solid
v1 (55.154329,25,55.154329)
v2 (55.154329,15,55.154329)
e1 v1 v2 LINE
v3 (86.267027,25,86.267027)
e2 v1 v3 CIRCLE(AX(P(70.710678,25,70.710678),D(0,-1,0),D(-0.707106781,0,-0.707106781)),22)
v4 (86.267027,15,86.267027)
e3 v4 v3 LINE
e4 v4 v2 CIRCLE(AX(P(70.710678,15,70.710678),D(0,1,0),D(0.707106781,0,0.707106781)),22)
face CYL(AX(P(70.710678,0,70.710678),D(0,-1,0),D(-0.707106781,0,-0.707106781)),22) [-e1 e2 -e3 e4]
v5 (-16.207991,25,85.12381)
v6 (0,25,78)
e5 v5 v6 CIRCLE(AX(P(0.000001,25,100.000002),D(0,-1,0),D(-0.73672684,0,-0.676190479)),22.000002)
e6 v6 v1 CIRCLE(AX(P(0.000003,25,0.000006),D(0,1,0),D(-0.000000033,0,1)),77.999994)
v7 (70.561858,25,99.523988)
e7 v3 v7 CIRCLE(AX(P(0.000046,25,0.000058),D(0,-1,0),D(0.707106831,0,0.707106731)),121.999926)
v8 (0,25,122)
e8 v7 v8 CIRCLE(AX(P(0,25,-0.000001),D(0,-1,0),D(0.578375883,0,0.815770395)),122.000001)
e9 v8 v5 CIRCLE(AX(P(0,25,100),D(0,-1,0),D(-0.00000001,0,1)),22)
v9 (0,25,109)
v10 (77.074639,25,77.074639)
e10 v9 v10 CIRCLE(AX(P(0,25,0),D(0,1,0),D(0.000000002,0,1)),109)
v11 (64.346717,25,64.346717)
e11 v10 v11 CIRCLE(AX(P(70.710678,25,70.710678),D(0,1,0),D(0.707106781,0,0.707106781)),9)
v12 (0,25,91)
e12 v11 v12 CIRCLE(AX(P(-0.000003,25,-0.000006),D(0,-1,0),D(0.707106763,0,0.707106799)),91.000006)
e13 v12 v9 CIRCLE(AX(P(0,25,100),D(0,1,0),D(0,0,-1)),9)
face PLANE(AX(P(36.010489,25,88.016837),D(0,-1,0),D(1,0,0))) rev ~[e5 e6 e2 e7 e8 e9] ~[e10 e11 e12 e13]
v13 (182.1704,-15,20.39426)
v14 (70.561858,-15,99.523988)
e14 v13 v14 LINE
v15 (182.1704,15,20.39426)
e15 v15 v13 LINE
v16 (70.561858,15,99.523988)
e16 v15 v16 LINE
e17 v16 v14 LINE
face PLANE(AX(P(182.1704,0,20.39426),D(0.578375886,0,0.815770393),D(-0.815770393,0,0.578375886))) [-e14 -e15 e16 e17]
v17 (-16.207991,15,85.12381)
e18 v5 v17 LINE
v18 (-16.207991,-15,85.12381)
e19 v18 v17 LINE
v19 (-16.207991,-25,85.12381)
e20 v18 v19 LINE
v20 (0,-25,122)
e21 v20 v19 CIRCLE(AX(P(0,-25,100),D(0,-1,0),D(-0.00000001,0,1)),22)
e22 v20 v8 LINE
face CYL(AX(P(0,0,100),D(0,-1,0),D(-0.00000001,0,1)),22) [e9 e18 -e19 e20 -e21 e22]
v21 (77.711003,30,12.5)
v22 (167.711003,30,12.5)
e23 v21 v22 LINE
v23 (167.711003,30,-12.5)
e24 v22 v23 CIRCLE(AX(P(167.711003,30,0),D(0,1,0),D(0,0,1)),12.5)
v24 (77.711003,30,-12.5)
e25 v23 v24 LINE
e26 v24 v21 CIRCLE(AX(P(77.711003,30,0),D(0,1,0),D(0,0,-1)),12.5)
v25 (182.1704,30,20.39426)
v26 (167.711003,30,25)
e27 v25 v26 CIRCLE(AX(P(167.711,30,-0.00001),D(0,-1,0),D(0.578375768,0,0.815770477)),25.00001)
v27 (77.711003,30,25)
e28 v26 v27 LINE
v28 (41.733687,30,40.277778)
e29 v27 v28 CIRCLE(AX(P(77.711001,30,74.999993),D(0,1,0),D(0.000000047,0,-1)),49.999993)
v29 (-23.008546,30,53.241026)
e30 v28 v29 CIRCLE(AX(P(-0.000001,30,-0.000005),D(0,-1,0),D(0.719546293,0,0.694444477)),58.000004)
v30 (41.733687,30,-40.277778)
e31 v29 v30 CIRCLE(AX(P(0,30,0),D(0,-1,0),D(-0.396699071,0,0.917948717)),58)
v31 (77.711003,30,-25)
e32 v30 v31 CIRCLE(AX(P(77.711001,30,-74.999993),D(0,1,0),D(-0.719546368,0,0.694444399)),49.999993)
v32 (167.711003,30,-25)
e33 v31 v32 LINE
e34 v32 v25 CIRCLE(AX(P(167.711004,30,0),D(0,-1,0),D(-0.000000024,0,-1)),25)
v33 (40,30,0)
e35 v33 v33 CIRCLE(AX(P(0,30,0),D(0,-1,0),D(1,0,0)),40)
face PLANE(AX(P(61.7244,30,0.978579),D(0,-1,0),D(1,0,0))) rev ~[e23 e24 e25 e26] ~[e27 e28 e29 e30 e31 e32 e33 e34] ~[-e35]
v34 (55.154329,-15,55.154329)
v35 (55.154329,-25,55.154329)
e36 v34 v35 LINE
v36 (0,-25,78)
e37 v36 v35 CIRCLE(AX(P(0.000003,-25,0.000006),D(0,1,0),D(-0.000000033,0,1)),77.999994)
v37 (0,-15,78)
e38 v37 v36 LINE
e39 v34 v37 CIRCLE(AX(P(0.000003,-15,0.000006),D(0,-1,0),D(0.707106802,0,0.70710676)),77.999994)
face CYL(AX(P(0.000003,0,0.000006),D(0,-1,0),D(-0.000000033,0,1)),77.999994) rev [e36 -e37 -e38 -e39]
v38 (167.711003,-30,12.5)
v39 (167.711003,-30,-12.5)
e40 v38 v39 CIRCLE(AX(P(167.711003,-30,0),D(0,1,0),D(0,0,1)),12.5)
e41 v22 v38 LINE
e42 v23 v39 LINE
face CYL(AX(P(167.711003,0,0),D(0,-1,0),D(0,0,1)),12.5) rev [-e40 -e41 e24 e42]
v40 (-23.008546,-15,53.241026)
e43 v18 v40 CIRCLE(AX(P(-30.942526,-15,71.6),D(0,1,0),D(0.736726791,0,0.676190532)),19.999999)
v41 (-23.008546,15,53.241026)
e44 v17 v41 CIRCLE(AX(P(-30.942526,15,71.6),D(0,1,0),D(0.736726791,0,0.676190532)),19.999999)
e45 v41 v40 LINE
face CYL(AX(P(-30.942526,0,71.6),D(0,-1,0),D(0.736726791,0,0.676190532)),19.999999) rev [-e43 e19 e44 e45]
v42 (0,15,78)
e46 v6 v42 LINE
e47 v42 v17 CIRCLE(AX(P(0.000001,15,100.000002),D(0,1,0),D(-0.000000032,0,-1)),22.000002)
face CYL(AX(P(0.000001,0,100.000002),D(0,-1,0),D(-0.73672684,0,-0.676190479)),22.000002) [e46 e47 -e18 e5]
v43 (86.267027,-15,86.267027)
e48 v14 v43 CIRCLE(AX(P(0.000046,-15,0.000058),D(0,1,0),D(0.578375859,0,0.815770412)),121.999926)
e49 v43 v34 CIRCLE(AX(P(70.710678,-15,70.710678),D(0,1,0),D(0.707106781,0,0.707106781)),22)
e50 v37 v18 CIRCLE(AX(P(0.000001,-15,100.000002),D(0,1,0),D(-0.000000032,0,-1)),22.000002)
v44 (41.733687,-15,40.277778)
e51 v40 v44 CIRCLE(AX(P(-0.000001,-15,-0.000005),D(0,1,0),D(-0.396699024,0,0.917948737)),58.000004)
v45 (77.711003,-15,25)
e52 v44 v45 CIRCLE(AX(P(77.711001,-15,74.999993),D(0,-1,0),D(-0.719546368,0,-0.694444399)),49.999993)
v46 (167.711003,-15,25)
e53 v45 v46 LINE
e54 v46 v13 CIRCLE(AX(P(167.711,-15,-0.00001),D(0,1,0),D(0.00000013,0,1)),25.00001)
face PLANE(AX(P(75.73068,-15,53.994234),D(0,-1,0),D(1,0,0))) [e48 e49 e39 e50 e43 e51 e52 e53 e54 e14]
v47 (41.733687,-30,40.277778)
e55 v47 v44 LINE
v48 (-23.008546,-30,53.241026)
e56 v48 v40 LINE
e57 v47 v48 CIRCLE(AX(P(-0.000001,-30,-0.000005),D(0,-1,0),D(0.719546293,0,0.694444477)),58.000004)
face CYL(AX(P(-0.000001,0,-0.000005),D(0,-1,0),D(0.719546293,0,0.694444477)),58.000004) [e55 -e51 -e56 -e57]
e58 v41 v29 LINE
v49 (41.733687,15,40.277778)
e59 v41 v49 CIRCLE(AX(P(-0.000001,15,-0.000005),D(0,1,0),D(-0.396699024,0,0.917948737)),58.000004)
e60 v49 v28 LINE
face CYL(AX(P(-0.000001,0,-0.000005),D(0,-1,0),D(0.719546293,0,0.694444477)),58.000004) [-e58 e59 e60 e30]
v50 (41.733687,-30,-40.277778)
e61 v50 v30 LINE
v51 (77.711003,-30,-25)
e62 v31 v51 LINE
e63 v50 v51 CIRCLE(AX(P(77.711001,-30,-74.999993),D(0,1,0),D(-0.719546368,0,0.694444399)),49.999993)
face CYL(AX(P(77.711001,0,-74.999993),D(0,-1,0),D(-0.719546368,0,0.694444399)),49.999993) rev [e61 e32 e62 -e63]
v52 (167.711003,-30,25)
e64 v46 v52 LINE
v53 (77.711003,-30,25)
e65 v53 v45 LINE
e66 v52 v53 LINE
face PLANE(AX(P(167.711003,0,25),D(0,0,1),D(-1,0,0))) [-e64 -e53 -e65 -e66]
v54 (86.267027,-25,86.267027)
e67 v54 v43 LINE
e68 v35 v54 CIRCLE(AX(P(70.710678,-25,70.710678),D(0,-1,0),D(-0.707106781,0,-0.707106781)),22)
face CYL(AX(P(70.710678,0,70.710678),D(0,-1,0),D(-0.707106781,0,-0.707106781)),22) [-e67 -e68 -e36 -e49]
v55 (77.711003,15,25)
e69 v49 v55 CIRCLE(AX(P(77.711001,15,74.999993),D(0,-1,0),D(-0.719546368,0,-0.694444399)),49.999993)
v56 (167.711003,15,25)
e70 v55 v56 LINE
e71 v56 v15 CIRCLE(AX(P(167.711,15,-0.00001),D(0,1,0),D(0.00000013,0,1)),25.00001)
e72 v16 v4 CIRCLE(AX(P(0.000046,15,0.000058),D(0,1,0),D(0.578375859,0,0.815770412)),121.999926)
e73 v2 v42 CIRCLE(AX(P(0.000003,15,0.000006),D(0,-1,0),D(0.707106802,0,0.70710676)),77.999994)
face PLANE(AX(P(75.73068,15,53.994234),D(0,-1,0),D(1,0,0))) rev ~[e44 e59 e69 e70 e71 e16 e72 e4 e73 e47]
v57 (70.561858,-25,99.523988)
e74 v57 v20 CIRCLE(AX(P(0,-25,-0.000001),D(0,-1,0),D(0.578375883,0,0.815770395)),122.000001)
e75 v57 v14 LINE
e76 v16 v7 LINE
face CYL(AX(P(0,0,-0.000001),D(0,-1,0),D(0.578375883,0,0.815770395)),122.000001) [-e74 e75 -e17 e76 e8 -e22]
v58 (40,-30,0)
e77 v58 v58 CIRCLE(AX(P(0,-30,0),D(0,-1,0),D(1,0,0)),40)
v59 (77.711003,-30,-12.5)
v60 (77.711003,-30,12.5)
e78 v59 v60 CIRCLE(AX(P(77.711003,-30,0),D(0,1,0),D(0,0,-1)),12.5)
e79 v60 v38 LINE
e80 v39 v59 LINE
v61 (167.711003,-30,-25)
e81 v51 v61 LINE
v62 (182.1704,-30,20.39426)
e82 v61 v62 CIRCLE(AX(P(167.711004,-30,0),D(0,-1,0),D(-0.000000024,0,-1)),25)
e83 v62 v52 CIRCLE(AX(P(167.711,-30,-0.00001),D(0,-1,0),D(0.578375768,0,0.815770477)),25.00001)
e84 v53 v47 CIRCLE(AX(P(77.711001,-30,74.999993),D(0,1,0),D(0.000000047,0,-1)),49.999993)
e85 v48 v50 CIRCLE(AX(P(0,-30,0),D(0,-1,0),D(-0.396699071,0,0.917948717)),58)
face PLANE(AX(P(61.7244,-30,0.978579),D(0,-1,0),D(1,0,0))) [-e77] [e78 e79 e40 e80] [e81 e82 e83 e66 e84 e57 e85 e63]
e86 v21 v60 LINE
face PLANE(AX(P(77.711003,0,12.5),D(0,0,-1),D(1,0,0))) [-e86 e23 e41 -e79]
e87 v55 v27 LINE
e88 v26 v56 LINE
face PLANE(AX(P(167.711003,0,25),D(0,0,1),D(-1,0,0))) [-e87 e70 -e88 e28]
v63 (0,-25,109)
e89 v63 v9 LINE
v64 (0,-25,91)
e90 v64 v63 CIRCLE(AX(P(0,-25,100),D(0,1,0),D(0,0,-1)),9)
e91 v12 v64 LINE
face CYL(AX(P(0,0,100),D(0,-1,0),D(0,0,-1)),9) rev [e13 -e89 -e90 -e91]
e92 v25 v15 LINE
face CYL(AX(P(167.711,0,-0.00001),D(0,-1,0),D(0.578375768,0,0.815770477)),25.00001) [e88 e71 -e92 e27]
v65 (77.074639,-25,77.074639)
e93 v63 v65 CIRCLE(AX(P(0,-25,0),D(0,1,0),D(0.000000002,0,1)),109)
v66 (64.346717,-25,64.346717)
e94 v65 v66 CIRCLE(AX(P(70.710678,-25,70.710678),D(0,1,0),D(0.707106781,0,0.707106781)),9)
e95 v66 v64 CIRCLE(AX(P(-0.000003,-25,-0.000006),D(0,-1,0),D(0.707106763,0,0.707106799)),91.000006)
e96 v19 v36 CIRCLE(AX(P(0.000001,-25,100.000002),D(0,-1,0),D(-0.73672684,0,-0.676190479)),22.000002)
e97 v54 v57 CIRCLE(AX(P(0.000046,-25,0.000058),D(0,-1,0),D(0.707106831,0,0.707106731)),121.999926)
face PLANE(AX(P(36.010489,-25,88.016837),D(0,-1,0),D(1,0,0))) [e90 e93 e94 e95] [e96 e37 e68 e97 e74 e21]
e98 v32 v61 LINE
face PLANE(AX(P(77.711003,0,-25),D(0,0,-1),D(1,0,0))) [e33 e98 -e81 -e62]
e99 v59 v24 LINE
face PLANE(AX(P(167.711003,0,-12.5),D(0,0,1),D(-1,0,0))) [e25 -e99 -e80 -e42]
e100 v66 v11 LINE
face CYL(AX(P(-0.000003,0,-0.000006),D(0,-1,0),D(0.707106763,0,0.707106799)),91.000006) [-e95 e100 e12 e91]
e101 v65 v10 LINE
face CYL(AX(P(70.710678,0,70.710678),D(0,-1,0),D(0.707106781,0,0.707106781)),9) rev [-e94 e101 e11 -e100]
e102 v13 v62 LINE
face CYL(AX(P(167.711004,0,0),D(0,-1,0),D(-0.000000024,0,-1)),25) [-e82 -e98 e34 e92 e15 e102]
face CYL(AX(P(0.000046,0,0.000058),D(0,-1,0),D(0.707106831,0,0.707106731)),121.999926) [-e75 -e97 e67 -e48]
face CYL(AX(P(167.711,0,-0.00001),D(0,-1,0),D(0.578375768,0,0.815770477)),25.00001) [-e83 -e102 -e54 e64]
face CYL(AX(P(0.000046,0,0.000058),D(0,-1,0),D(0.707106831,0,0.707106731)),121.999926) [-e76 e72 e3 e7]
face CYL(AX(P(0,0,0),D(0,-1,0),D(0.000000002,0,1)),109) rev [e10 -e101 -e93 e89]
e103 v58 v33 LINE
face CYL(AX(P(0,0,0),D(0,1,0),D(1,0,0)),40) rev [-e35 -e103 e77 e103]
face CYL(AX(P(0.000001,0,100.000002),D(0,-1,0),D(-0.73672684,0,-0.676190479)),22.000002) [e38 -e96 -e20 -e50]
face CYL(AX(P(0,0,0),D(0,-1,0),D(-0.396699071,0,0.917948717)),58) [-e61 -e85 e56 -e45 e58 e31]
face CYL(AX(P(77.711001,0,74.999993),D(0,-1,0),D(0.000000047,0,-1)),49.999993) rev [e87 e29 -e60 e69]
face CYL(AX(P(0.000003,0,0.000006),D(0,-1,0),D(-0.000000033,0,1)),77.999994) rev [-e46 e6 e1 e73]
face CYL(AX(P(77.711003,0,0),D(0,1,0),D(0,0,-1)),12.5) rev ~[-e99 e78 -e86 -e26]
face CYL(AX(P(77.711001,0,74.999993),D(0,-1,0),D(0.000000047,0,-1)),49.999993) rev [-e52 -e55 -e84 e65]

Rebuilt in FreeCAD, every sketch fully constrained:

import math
import FreeCAD as App
import Part
import Sketcher

V = App.Vector

doc = App.newDocument("Part")
body = doc.addObject("PartDesign::Body", "Body")

# Sketch on XZ plane
sketch1 = body.newObject("Sketcher::SketchObject", "Sketch")
sketch1.AttachmentSupport = (doc.getObject("XZ_Plane"), [""])
sketch1.MapMode = "FlatFace"
sketch1.addGeometry([
    Part.ArcOfCircle(Part.Circle(V(78, -75, 0), V(0, 0, 1), 50), math.radians(90), math.radians(136)),  # 0
    Part.LineSegment(V(78, -25, 0), V(168, -25, 0)),  # 1
    Part.ArcOfCircle(Part.Circle(V(168, 0, 0), V(0, 0, 1), 25), math.radians(-90), math.radians(55)),  # 2
    Part.ArcOfCircle(Part.Circle(V(168, 0, 0), V(0, 0, 1), 25), math.radians(55), math.radians(90)),  # 3
    Part.LineSegment(V(168, 25, 0), V(78, 25, 0)),  # 4
    Part.ArcOfCircle(Part.Circle(V(78, 75, 0), V(0, 0, 1), 50), math.radians(-136), math.radians(-90)),  # 5
    Part.ArcOfCircle(Part.Circle(V(0, 0, 0), V(0, 0, 1), 58), math.radians(44), math.radians(113)),  # 6
    Part.ArcOfCircle(Part.Circle(V(0, 0, 0), V(0, 0, 1), 58), math.radians(113), math.radians(316)),  # 7
    Part.Circle(V(0, 0, 0), V(0, 0, 1), 40),  # 8
    Part.LineSegment(V(168, -12, 0), V(78, -12, 0)),  # 9
    Part.ArcOfCircle(Part.Circle(V(78, 0, 0), V(0, 0, 1), 12), math.radians(90), math.radians(270)),  # 10
    Part.LineSegment(V(78, 12, 0), V(168, 12, 0)),  # 11
    Part.ArcOfCircle(Part.Circle(V(168, 0, 0), V(0, 0, 1), 12), math.radians(-90), math.radians(90)),  # 12
], False)
sketch1.addConstraint([
    Sketcher.Constraint("Tangent", 0, 1, 1, 1),
    Sketcher.Constraint("Tangent", 1, 2, 2, 1),
    Sketcher.Constraint("Tangent", 2, 2, 3, 1),
    Sketcher.Constraint("Tangent", 3, 2, 4, 1),
    Sketcher.Constraint("Tangent", 4, 2, 5, 2),
    Sketcher.Constraint("Tangent", 5, 1, 6, 1),
    Sketcher.Constraint("Tangent", 6, 2, 7, 1),
    Sketcher.Constraint("Tangent", 7, 2, 0, 2),
    Sketcher.Constraint("Tangent", 9, 2, 10, 2),
    Sketcher.Constraint("Tangent", 10, 1, 11, 1),
    Sketcher.Constraint("Tangent", 11, 2, 12, 2),
    Sketcher.Constraint("Tangent", 12, 1, 9, 1),
    Sketcher.Constraint("Horizontal", 1),
    Sketcher.Constraint("Horizontal", 4),
    Sketcher.Constraint("Horizontal", 9),
    Sketcher.Constraint("Horizontal", 11),
    Sketcher.Constraint("Coincident", 6, 3, -1, 1),
    Sketcher.Constraint("Coincident", 8, 3, -1, 1),
    Sketcher.Constraint("Coincident", 12, 3, 2, 3),
    Sketcher.Constraint("Equal", 0, 5),
    Sketcher.Constraint("Symmetric", 0, 3, 5, 3, -1),
    Sketcher.Constraint("PointOnObject", 2, 3, -1),
    Sketcher.Constraint("Vertical", 10, 3, 0, 1),
    Sketcher.Constraint("Diameter", 8, 80.0),
    Sketcher.Constraint("Radius", 2, 25.0),
    Sketcher.Constraint("Radius", 7, 58.0),
    Sketcher.Constraint("Radius", 10, 12.5),
    Sketcher.Constraint("DistanceX", 1, 1, 1, 2, 90.0),
    Sketcher.Constraint("DistanceX", -1, 1, 0, 3, 77.711001),
    Sketcher.Constraint("DistanceX", -1, 1, 2, 2, 182.1704),
    Sketcher.Constraint("DistanceY", 6, 3, 6, 2, 53.241031),
])
pad1 = body.newObject("PartDesign::Pad", "Pad")
pad1.Profile = sketch1
pad1.Length = 60
pad1.Midplane = True

# Sketch on XZ plane
sketch2 = body.newObject("Sketcher::SketchObject", "Sketch001")
sketch2.AttachmentSupport = (doc.getObject("XZ_Plane"), [""])
sketch2.MapMode = "FlatFace"
sketch2.addGeometry([
    Part.ArcOfCircle(Part.Circle(V(-31, 72, 0), V(0, 0, 1), 20), math.radians(-67), math.radians(43)),  # 0
    Part.ArcOfCircle(Part.Circle(V(0, 0, 0), V(0, 0, 1), 58), math.radians(44), math.radians(113)),  # 1
    Part.ArcOfCircle(Part.Circle(V(78, 75, 0), V(0, 0, 1), 50), math.radians(-136), math.radians(-90)),  # 2
    Part.LineSegment(V(78, 25, 0), V(168, 25, 0)),  # 3
    Part.ArcOfCircle(Part.Circle(V(168, 0, 0), V(0, 0, 1), 25), math.radians(55), math.radians(90)),  # 4
    Part.LineSegment(V(182, 20, 0), V(71, 100, 0)),  # 5
    Part.ArcOfCircle(Part.Circle(V(0, 0, 0), V(0, 0, 1), 122), math.radians(45), math.radians(54.66)),  # 6
    Part.ArcOfCircle(Part.Circle(V(71, 71, 0), V(0, 0, 1), 22), math.radians(-135), math.radians(45)),  # 7
    Part.ArcOfCircle(Part.Circle(V(0, 0, 0), V(0, 0, 1), 78), math.radians(45), math.radians(90)),  # 8
    Part.ArcOfCircle(Part.Circle(V(0, 100, 0), V(0, 0, 1), 22), math.radians(-137), math.radians(-90)),  # 9
], False)
sketch2.addConstraint([
    Sketcher.Constraint("Tangent", 0, 1, 1, 2),
    Sketcher.Constraint("Tangent", 1, 1, 2, 1),
    Sketcher.Constraint("Tangent", 2, 2, 3, 1),
    Sketcher.Constraint("Tangent", 3, 2, 4, 2),
    Sketcher.Constraint("Tangent", 4, 1, 5, 1),
    Sketcher.Constraint("Tangent", 5, 2, 6, 2),
    Sketcher.Constraint("Tangent", 6, 1, 7, 2),
    Sketcher.Constraint("Tangent", 7, 1, 8, 1),
    Sketcher.Constraint("Tangent", 8, 2, 9, 2),
    Sketcher.Constraint("Tangent", 9, 1, 0, 2),
    Sketcher.Constraint("Horizontal", 3),
    Sketcher.Constraint("Coincident", 1, 3, -1, 1),
    Sketcher.Constraint("Coincident", 8, 3, -1, 1),
    Sketcher.Constraint("Equal", 7, 9),
    Sketcher.Constraint("PointOnObject", 9, 3, -2),
    Sketcher.Constraint("Radius", 0, 19.999999),
    Sketcher.Constraint("Radius", 7, 22.0),
    Sketcher.Constraint("DistanceX", 3, 1, 3, 2, 90.0),
    Sketcher.Constraint("DistanceY", -1, 1, 9, 3, 100.000002),
    Sketcher.Constraint("DistanceY", -1, 1, 2, 2, 25.0),
    Sketcher.Constraint("DistanceY", -1, 1, 0, 3, 71.6),
    Sketcher.Constraint("Radius", 4, 25.00001),
    Sketcher.Constraint("DistanceX", -1, 1, 2, 3, 77.711001),
    Sketcher.Constraint("Radius", 6, 121.999926),
    Sketcher.Constraint("DistanceY", 1, 1, 7, 3, 30.4329),
    Sketcher.Constraint("Distance", 5, 136.813671),
])
pad2 = body.newObject("PartDesign::Pad", "Pad001")
pad2.Profile = sketch2
pad2.Length = 30
pad2.Midplane = True

# Sketch on XZ plane
sketch3 = body.newObject("Sketcher::SketchObject", "Sketch002")
sketch3.AttachmentSupport = (doc.getObject("XZ_Plane"), [""])
sketch3.MapMode = "FlatFace"
sketch3.addGeometry([
    Part.ArcOfCircle(Part.Circle(V(0, 100, 0), V(0, 0, 1), 22), math.radians(90.000001), math.radians(222.546664)),  # 0
    Part.ArcOfCircle(Part.Circle(V(0.000001, 100.000002, 0), V(0, 0, 1), 22.000002), math.radians(-137.453334), math.radians(-90.000002)),  # 1
    Part.ArcOfCircle(Part.Circle(V(0.000003, 0.000006, 0), V(0, 0, 1), 77.999994), math.radians(44.999998), math.radians(90.000002)),  # 2
    Part.ArcOfCircle(Part.Circle(V(70.710678, 70.710678, 0), V(0, 0, 1), 22), math.radians(-135), math.radians(45)),  # 3
    Part.ArcOfCircle(Part.Circle(V(0.000046, 0.000058, 0), V(0, 0, 1), 121.999926), math.radians(44.999996), math.radians(54.66361)),  # 4
    Part.ArcOfCircle(Part.Circle(V(0, -0.000001, 0), V(0, 0, 1), 122.000001), math.radians(54.663608), math.radians(90)),  # 5
    Part.ArcOfCircle(Part.Circle(V(-0.000003, -0.000006, 0), V(0, 0, 1), 91.000006), math.radians(45.000001), math.radians(89.999998)),  # 6
    Part.ArcOfCircle(Part.Circle(V(0, 100, 0), V(0, 0, 1), 9), math.radians(90), math.radians(270)),  # 7
    Part.ArcOfCircle(Part.Circle(V(0, 0, 0), V(0, 0, 1), 109), math.radians(45), math.radians(90)),  # 8
    Part.ArcOfCircle(Part.Circle(V(70.710678, 70.710678, 0), V(0, 0, 1), 9), math.radians(-135), math.radians(45)),  # 9
], False)
sketch3.addConstraint([
    Sketcher.Constraint("Coincident", 0, 2, 1, 1),
    Sketcher.Constraint("Coincident", 1, 2, 2, 2),
    Sketcher.Constraint("Coincident", 2, 1, 3, 1),
    Sketcher.Constraint("Coincident", 3, 2, 4, 1),
    Sketcher.Constraint("Coincident", 4, 2, 5, 1),
    Sketcher.Constraint("Coincident", 5, 2, 0, 1),
    Sketcher.Constraint("Coincident", 6, 2, 7, 2),
    Sketcher.Constraint("Coincident", 7, 1, 8, 2),
    Sketcher.Constraint("Coincident", 8, 1, 9, 2),
    Sketcher.Constraint("Coincident", 9, 1, 6, 1),
    Sketcher.Constraint("Coincident", 2, 3, -1, 1),
    Sketcher.Constraint("Coincident", 5, 3, -1, 1),
    Sketcher.Constraint("Coincident", 6, 3, -1, 1),
    Sketcher.Constraint("Coincident", 8, 3, -1, 1),
    Sketcher.Constraint("Coincident", 1, 3, 0, 3),
    Sketcher.Constraint("Coincident", 7, 3, 0, 3),
    Sketcher.Constraint("Coincident", 9, 3, 3, 3),
    Sketcher.Constraint("PointOnObject", 0, 3, -2),
    Sketcher.Constraint("PointOnObject", 1, 2, -2),
    Sketcher.Constraint("PointOnObject", 5, 2, -2),
    Sketcher.Constraint("PointOnObject", 6, 2, -2),
    Sketcher.Constraint("PointOnObject", 7, 1, -2),
    Sketcher.Constraint("Radius", 0, 22.0),
    Sketcher.Constraint("Radius", 5, 122.000001),
    Sketcher.Constraint("Radius", 7, 9.0),
    Sketcher.Constraint("Radius", 4, 121.999926),
    Sketcher.Constraint("DistanceX", 2, 1, 3, 2, 31.112698),
    Sketcher.Constraint("DistanceX", -1, 1, 3, 3, 70.710678),
    Sketcher.Constraint("DistanceX", 0, 2, -1, 1, 16.207991),
    Sketcher.Constraint("DistanceX", -1, 1, 2, 1, 55.154329),
    Sketcher.Constraint("DistanceX", -1, 1, 4, 2, 70.561858),
    Sketcher.Constraint("DistanceX", -1, 1, 8, 1, 77.074639),
    Sketcher.Constraint("DistanceX", 9, 1, 3, 3, 6.363961),
])
pad3 = body.newObject("PartDesign::Pad", "Pad002")
pad3.Profile = sketch3
pad3.Length = 50
pad3.Midplane = True

doc.recompute()
